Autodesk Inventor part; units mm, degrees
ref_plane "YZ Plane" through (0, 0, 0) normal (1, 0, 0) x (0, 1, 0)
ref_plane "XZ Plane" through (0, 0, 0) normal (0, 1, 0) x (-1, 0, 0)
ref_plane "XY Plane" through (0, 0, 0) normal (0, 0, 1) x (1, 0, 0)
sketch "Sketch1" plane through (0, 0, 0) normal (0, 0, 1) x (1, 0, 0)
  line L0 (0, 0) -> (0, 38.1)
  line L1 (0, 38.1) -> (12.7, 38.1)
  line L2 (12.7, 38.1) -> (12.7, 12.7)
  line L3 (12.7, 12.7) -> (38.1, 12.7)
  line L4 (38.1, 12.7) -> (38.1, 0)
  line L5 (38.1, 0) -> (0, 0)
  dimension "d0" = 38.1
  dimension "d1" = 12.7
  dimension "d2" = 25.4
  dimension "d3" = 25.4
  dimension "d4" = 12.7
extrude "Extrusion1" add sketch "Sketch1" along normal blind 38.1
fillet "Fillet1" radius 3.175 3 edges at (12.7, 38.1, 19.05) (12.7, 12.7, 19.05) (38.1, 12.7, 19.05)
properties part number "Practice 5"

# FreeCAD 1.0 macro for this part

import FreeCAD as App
import Part
import Sketcher
Q = App.Units.Quantity


def edges_at(feature, points):
    """Names of the edges that pass closest to the given points."""
    edges = feature.Shape.Edges
    near = lambda p: min(range(len(edges)), key=lambda i: edges[i].distToShape(Part.Vertex(*p))[0])
    return sorted({f"Edge{near(p) + 1}" for p in points})


def add_polygon(sketch, points):
    """Adds a closed chain of lines whose ends are joined by coincident constraints."""
    first, n = sketch.GeometryCount, len(points)
    for a, b in zip(points, points[1:] + points[:1]):
        sketch.addGeometry(Part.LineSegment(App.Vector(*a, 0), App.Vector(*b, 0)), False)
    for i in range(n):
        sketch.addConstraint(Sketcher.Constraint("Coincident", first + i, 2, first + (i + 1) % n, 1))

doc = App.newDocument("Part")
body = doc.addObject("PartDesign::Body", "Body")

# Sketch on XY plane
sketch1 = body.newObject("Sketcher::SketchObject", "Sketch")
sketch1.AttachmentSupport = (doc.getObject("XY_Plane"), [""])
sketch1.MapMode = "FlatFace"
add_polygon(sketch1, [(0, 38), (0, 0), (38, 0), (38, 13), (13, 13), (13, 38)])  # lines 0-5
sketch1.addConstraint([
    Sketcher.Constraint("Vertical", 0),
    Sketcher.Constraint("Horizontal", 1),
    Sketcher.Constraint("Vertical", 2),
    Sketcher.Constraint("Horizontal", 3),
    Sketcher.Constraint("Vertical", 4),
    Sketcher.Constraint("Horizontal", 5),
    Sketcher.Constraint("Coincident", 0, 2, -1, 1),
    Sketcher.Constraint("Equal", 1, 0),
    Sketcher.Constraint("Equal", 5, 2),
    Sketcher.Constraint("DistanceX", 3, 2, 3, 1, Q("1 in")),
    Sketcher.Constraint("DistanceX", 1, 1, 1, 2, Q("1.5 in")),
])
pad1 = body.newObject("PartDesign::Pad", "Pad")
pad1.Profile = sketch1
pad1.Length = Q("1.5 in")
doc.recompute()

fillet = body.newObject("PartDesign::Fillet", "Fillet")
fillet.Base = (pad1, edges_at(pad1, [(12.7, 38.1, 19.05), (12.7, 12.7, 19.05), (38.1, 12.7, 19.05)]))
fillet.Radius = Q("0.125 in")

doc.recompute()
